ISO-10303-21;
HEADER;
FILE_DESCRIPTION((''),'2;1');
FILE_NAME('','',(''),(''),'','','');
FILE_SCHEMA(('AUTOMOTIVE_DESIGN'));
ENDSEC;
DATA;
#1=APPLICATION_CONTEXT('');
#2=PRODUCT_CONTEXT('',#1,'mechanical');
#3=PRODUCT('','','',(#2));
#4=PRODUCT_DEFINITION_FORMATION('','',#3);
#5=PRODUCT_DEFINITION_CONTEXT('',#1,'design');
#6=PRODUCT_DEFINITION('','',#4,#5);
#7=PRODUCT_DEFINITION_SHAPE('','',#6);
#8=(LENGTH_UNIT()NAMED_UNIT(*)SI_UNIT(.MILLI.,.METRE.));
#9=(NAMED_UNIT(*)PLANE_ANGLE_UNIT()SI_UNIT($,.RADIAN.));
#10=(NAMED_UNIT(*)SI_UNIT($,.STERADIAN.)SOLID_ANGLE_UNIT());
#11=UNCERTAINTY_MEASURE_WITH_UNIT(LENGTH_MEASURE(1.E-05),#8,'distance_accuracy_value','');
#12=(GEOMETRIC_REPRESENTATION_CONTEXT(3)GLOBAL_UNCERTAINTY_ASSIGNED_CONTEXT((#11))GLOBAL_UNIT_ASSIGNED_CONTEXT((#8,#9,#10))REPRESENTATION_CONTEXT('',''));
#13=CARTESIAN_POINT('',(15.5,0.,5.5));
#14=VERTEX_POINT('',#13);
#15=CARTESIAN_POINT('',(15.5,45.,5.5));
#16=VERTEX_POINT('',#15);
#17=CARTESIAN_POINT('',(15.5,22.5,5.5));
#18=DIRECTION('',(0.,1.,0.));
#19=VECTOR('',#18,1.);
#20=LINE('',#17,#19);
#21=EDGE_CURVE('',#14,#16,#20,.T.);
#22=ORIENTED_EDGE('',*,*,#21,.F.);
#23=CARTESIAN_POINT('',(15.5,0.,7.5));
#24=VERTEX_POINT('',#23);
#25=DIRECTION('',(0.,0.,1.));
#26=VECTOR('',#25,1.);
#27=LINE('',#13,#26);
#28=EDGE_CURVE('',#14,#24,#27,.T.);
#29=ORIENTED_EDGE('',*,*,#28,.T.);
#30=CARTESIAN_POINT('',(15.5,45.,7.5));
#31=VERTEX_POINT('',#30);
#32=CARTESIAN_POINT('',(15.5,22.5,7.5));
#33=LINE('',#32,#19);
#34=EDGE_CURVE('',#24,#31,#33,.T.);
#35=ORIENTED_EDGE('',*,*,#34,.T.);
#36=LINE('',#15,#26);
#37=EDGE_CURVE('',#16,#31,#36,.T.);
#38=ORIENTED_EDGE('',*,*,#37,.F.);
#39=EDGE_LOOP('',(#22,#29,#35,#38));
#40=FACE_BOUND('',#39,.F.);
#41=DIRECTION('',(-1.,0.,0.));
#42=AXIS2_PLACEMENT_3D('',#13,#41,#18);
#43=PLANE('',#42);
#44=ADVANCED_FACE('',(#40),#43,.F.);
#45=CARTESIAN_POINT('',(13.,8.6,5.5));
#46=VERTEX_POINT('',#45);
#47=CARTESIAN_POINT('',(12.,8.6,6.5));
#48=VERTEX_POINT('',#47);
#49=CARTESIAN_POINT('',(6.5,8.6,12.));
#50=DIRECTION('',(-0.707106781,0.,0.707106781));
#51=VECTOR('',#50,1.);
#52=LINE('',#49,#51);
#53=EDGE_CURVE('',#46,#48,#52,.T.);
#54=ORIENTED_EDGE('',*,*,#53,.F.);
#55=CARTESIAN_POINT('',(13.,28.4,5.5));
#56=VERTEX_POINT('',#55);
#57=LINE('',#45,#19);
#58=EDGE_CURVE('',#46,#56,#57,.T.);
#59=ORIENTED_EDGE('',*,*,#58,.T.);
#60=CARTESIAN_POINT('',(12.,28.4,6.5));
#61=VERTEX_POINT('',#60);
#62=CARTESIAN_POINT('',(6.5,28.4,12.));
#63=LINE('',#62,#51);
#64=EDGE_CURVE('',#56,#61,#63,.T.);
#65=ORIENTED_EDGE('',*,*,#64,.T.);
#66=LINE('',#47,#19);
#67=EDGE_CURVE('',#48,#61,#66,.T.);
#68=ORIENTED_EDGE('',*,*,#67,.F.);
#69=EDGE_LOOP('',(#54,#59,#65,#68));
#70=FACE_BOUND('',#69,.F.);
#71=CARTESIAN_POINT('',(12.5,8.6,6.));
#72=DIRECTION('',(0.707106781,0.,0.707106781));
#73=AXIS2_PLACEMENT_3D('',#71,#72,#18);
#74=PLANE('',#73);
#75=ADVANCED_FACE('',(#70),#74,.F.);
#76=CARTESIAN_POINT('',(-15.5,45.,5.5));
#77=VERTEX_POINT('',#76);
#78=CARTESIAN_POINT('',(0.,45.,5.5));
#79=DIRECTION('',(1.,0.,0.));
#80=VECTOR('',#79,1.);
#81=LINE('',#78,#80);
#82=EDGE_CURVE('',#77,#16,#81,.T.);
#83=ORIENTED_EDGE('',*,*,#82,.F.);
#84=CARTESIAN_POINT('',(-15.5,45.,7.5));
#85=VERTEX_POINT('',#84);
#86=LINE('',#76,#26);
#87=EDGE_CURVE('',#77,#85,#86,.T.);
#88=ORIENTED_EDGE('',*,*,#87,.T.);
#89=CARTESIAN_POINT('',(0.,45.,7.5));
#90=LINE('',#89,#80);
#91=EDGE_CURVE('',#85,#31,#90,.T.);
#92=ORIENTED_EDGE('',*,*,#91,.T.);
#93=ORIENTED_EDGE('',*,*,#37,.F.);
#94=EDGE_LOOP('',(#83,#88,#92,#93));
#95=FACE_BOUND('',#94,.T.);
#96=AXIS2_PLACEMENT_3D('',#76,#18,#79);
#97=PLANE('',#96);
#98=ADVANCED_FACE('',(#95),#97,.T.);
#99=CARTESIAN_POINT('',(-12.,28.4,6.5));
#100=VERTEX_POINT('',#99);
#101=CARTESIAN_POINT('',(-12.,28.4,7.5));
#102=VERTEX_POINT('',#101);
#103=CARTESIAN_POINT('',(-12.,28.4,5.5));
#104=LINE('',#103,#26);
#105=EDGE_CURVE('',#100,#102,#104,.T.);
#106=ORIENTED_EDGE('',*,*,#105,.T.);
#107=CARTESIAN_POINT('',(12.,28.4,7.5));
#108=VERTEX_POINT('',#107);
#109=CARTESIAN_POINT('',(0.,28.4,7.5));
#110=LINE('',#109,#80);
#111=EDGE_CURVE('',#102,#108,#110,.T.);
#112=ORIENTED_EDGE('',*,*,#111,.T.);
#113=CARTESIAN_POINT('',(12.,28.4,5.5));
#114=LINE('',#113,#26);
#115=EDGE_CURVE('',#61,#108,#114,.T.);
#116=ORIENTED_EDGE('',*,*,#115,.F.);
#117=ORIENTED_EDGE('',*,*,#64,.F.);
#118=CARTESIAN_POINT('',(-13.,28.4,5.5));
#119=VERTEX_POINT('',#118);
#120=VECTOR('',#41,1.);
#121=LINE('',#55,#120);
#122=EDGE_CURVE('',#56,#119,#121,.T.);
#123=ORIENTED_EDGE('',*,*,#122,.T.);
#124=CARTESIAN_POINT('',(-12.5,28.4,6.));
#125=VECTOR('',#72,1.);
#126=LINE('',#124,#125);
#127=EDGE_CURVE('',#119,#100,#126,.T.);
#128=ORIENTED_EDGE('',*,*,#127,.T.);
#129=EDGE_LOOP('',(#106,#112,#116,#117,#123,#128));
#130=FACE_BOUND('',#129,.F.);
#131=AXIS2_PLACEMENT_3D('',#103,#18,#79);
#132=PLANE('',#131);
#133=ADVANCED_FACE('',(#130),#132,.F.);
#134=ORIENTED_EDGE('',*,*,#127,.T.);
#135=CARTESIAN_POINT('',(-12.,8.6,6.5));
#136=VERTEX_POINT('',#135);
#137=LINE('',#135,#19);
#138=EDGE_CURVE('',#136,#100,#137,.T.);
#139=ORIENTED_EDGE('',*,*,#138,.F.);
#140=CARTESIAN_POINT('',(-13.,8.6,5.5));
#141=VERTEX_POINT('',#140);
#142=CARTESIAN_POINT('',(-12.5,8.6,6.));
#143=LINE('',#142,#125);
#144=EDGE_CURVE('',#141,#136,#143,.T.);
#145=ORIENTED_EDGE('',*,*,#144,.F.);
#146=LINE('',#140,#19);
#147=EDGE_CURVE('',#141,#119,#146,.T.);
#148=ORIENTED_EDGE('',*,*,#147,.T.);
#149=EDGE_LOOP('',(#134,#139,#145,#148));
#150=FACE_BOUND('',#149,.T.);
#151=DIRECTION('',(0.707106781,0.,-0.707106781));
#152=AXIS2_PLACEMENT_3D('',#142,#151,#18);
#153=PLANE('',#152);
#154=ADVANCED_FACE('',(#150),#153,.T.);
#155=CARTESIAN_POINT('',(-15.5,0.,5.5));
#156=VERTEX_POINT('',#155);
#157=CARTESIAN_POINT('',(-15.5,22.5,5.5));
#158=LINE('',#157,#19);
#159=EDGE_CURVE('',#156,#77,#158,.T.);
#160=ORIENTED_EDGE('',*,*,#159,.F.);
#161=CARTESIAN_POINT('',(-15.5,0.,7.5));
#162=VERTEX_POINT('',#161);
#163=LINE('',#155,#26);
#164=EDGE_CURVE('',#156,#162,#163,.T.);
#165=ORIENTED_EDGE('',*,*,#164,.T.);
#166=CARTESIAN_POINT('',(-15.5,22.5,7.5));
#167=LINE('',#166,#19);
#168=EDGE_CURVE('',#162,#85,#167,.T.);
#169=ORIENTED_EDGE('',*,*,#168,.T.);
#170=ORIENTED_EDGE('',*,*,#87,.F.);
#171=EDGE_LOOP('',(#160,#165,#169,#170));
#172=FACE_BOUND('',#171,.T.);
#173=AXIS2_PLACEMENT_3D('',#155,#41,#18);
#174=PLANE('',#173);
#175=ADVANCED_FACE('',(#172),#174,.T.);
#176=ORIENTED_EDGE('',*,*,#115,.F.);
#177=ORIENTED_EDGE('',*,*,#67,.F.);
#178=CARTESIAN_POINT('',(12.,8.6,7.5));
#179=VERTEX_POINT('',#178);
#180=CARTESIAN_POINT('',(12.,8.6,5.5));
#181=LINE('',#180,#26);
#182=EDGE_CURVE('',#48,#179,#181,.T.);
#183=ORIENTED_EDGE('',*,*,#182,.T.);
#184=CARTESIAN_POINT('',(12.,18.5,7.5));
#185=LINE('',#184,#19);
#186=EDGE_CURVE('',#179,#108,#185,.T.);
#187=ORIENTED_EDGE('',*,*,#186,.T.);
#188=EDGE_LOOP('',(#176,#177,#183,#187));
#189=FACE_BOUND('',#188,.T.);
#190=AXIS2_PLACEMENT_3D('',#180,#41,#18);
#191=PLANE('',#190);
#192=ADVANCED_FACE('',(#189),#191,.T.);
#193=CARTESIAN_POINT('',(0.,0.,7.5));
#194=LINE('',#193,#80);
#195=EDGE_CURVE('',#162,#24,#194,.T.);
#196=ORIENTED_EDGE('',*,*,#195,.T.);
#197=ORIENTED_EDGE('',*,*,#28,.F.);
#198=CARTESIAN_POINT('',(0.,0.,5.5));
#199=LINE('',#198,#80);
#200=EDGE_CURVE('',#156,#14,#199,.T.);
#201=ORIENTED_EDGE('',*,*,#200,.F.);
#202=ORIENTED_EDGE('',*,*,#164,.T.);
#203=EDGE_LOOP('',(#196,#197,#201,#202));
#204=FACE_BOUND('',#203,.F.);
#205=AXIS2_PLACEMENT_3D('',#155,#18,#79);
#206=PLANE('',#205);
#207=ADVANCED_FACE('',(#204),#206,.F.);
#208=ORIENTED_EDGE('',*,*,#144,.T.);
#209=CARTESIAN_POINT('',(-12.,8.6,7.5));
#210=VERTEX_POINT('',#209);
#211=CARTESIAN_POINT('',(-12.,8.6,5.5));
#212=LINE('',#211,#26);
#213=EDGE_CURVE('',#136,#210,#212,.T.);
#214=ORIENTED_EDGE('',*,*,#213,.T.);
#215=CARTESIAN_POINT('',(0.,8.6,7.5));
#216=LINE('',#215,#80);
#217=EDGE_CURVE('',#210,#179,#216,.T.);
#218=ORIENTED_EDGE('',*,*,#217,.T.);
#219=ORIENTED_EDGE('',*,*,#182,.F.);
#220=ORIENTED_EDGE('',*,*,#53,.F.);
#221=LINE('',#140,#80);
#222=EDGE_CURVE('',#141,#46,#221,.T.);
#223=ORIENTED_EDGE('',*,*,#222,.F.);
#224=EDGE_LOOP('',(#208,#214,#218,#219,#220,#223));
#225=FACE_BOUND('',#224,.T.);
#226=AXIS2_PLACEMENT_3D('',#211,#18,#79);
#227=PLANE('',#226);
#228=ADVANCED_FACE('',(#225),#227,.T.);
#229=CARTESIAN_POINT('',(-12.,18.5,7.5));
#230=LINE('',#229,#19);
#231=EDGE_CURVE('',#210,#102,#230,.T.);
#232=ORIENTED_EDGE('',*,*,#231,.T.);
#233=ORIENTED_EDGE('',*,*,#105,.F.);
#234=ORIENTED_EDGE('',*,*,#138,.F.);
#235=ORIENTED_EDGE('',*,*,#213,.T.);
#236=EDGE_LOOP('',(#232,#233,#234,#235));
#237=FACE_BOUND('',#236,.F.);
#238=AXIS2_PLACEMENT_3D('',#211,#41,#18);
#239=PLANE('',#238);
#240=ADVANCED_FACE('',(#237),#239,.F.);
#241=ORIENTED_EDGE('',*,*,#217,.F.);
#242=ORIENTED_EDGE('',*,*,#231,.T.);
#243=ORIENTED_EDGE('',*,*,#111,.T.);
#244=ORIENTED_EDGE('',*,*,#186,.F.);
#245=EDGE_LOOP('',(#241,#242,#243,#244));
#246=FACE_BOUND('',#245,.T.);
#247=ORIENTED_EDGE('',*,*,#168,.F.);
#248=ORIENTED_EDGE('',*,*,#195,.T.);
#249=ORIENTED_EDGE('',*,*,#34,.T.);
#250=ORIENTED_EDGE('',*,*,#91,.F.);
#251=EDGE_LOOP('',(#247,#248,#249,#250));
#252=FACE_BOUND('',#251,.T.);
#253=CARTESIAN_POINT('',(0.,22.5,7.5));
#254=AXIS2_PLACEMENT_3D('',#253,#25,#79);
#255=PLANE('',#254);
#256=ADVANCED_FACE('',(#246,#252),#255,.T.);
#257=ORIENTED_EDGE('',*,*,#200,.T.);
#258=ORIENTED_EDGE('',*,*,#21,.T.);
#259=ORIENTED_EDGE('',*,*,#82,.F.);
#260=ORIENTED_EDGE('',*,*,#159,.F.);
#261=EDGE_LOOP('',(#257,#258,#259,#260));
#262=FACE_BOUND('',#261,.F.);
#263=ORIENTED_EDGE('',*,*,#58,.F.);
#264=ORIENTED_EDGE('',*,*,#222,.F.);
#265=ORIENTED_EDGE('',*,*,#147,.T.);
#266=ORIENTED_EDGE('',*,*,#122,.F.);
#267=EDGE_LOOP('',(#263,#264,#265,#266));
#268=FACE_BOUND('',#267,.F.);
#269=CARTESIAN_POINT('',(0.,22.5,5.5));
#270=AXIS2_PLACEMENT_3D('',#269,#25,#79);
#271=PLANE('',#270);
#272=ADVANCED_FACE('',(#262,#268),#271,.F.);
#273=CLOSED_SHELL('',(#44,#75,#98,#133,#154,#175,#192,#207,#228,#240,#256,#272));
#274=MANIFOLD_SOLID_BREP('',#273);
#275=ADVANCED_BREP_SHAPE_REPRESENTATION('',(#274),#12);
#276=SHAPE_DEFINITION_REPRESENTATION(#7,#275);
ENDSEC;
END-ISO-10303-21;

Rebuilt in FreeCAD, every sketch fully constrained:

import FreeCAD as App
import Part
import Sketcher

V = App.Vector


def edges_at(feature, points):
    """Names of the edges that pass closest to the given points."""
    edges = feature.Shape.Edges
    near = lambda p: min(range(len(edges)), key=lambda i: edges[i].distToShape(Part.Vertex(*p))[0])
    return sorted({f"Edge{near(p) + 1}" for p in points})

doc = App.newDocument("Part")
body = doc.addObject("PartDesign::Body", "Body")

sketch1 = body.newObject("Sketcher::SketchObject", "Sketch")
sketch1.AttachmentSupport = (doc.getObject("XY_Plane"), [""])
sketch1.MapMode = "FlatFace"
sketch1.AttachmentOffset = App.Placement(V(0, 0, 5.5), App.Rotation())
sketch1.addGeometry([
    Part.LineSegment(V(-12, 28.4, 0), V(-12, 8.6, 0)),
    Part.LineSegment(V(-12, 8.6, 0), V(12, 8.6, 0)),
    Part.LineSegment(V(12, 8.6, 0), V(12, 28.4, 0)),
    Part.LineSegment(V(12, 28.4, 0), V(-12, 28.4, 0)),
], False)
sketch1.addConstraint([
    Sketcher.Constraint("Coincident", 0, 2, 1, 1),
    Sketcher.Constraint("Coincident", 1, 2, 2, 1),
    Sketcher.Constraint("Coincident", 2, 2, 3, 1),
    Sketcher.Constraint("Coincident", 3, 2, 0, 1),
    Sketcher.Constraint("Vertical", 0),
    Sketcher.Constraint("Horizontal", 1),
    Sketcher.Constraint("Vertical", 2),
    Sketcher.Constraint("Horizontal", 3),
    Sketcher.Constraint("DistanceX", 1, 1, 1, 2, 24.0),
    Sketcher.Constraint("DistanceY", 0, 2, 0, 1, 19.8),
    Sketcher.Constraint("DistanceX", 0, 2, -1, 1, 12.0),
    Sketcher.Constraint("DistanceY", -1, 1, 0, 2, 8.6),
])
pad1 = body.newObject("PartDesign::Pad", "Pad")
pad1.Profile = sketch1
pad1.Length = 2
body2 = doc.addObject("PartDesign::Body", "Body001")

sketch2 = body2.newObject("Sketcher::SketchObject", "Sketch001")
sketch2.AttachmentSupport = (doc.getObject("XY_Plane001"), [""])
sketch2.MapMode = "FlatFace"
sketch2.AttachmentOffset = App.Placement(V(0, 0, 5.5), App.Rotation())
sketch2.addGeometry([
    Part.LineSegment(V(-15.5, 45, 0), V(-15.5, 0, 0)),
    Part.LineSegment(V(-15.5, 0, 0), V(15.5, 0, 0)),
    Part.LineSegment(V(15.5, 0, 0), V(15.5, 45, 0)),
    Part.LineSegment(V(15.5, 45, 0), V(-15.5, 45, 0)),
], False)
sketch2.addConstraint([
    Sketcher.Constraint("Coincident", 0, 2, 1, 1),
    Sketcher.Constraint("Coincident", 1, 2, 2, 1),
    Sketcher.Constraint("Coincident", 2, 2, 3, 1),
    Sketcher.Constraint("Coincident", 3, 2, 0, 1),
    Sketcher.Constraint("Vertical", 0),
    Sketcher.Constraint("Horizontal", 1),
    Sketcher.Constraint("Vertical", 2),
    Sketcher.Constraint("Horizontal", 3),
    Sketcher.Constraint("Symmetric", 0, 2, 1, 2, -1, 1),
    Sketcher.Constraint("DistanceX", 1, 1, 1, 2, 31.0),
    Sketcher.Constraint("DistanceY", 0, 2, 0, 1, 45.0),
])
pad2 = body2.newObject("PartDesign::Pad", "Pad001")
pad2.Profile = sketch2
pad2.Length = 2
doc.recompute()

boolean = body2.newObject("PartDesign::Boolean", "Boolean")
boolean.Type = "Cut"
boolean.addObjects([body])
doc.recompute()

chamfer = body2.newObject("PartDesign::Chamfer", "Chamfer")
chamfer.Base = (boolean, edges_at(boolean, [(-12, 18.5, 5.5), (12, 18.5, 5.5)]))
chamfer.Size = 1

doc.recompute()
